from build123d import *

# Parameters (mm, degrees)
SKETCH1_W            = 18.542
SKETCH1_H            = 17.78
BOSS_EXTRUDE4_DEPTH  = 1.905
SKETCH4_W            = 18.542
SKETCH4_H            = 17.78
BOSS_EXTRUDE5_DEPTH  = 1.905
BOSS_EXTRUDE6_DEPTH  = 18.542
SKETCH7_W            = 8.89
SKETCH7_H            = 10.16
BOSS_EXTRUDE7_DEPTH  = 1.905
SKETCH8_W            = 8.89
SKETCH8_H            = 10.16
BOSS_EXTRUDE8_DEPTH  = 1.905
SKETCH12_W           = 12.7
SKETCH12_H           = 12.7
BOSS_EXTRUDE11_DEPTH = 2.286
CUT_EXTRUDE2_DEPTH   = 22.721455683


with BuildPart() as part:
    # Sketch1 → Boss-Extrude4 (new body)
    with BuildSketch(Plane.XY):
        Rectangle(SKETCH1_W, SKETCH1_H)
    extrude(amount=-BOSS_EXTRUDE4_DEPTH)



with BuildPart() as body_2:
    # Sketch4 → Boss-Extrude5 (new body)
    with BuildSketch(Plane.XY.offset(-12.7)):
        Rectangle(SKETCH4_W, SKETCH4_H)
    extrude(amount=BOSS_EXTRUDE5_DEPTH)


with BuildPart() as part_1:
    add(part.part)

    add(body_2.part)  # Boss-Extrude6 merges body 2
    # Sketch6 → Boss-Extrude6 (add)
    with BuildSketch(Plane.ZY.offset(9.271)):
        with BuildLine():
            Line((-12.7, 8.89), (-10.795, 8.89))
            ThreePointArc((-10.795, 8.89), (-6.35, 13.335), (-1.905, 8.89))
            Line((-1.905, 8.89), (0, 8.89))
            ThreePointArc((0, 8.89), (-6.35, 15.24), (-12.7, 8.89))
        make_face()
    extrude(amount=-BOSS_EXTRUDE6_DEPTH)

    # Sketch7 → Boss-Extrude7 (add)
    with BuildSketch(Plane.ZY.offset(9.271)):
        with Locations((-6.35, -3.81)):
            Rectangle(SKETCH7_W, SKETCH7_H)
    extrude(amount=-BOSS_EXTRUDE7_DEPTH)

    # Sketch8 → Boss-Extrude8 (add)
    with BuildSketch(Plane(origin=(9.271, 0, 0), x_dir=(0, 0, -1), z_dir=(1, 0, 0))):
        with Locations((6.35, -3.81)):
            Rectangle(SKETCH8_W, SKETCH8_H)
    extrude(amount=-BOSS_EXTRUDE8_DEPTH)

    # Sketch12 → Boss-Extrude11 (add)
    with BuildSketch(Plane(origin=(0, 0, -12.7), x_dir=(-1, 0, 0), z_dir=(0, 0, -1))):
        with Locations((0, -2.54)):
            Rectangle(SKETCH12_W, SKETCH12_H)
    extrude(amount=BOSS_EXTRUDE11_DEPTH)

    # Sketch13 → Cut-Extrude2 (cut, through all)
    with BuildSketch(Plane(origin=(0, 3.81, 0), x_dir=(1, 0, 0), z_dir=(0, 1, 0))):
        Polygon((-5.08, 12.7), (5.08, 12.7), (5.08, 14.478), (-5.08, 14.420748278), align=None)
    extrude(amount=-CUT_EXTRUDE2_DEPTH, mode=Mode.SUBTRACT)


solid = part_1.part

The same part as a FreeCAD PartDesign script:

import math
import FreeCAD as App
import Part
import Sketcher

V = App.Vector
Q = App.Units.Quantity

doc = App.newDocument("Part")
body = doc.addObject("PartDesign::Body", "Body")

# Sketch on XY plane
sketch1 = body.newObject("Sketcher::SketchObject", "Sketch")
sketch1.AttachmentSupport = (doc.getObject("XY_Plane"), [""])
sketch1.MapMode = "FlatFace"
sketch1.addGeometry([
    Part.LineSegment(V(-9.271, 8.89, 0), V(-9.271, -8.89, 0)),
    Part.LineSegment(V(-9.271, -8.89, 0), V(9.271, -8.89, 0)),
    Part.LineSegment(V(9.271, -8.89, 0), V(9.271, 8.89, 0)),
    Part.LineSegment(V(9.271, 8.89, 0), V(-9.271, 8.89, 0)),
], False)
sketch1.addConstraint([
    Sketcher.Constraint("Coincident", 0, 2, 1, 1),
    Sketcher.Constraint("Coincident", 1, 2, 2, 1),
    Sketcher.Constraint("Coincident", 2, 2, 3, 1),
    Sketcher.Constraint("Coincident", 3, 2, 0, 1),
    Sketcher.Constraint("Vertical", 0),
    Sketcher.Constraint("Horizontal", 1),
    Sketcher.Constraint("Vertical", 2),
    Sketcher.Constraint("Horizontal", 3),
    Sketcher.Constraint("Symmetric", 0, 2, 2, 2, -1, 1),
    Sketcher.Constraint("DistanceY", 0, 2, 0, 1, Q("0.7 in")),
    Sketcher.Constraint("DistanceX", 1, 1, 1, 2, Q("0.73 in")),
])
pad1 = body.newObject("PartDesign::Pad", "Pad")
pad1.Profile = sketch1
pad1.Length = Q("0.075 in")
pad1.Reversed = True
body2 = doc.addObject("PartDesign::Body", "Body001")

# Sketch on XY plane
sketch2 = body2.newObject("Sketcher::SketchObject", "Sketch001")
sketch2.AttachmentSupport = (doc.getObject("XY_Plane001"), [""])
sketch2.MapMode = "FlatFace"
sketch2.AttachmentOffset = App.Placement(V(0, 0, -0.5 * 25.4), App.Rotation())
sketch2.addGeometry([
    Part.LineSegment(V(-9.271, 8.89, 0), V(-9.271, -8.89, 0)),
    Part.LineSegment(V(-9.271, -8.89, 0), V(9.271, -8.89, 0)),
    Part.LineSegment(V(9.271, -8.89, 0), V(9.271, 8.89, 0)),
    Part.LineSegment(V(9.271, 8.89, 0), V(-9.271, 8.89, 0)),
], False)
sketch2.addConstraint([
    Sketcher.Constraint("Coincident", 0, 2, 1, 1),
    Sketcher.Constraint("Coincident", 1, 2, 2, 1),
    Sketcher.Constraint("Coincident", 2, 2, 3, 1),
    Sketcher.Constraint("Coincident", 3, 2, 0, 1),
    Sketcher.Constraint("Vertical", 0),
    Sketcher.Constraint("Horizontal", 1),
    Sketcher.Constraint("Vertical", 2),
    Sketcher.Constraint("Horizontal", 3),
    Sketcher.Constraint("Symmetric", 0, 2, 2, 2, -1, 1),
    Sketcher.Constraint("DistanceY", 0, 2, 0, 1, Q("0.7 in")),
    Sketcher.Constraint("DistanceX", 1, 1, 1, 2, Q("0.73 in")),
])
pad2 = body2.newObject("PartDesign::Pad", "Pad001")
pad2.Profile = sketch2
pad2.Length = Q("0.075 in")
body.AllowCompound = True
doc.recompute()

boolean = body.newObject("PartDesign::Boolean", "Boolean")
boolean.Type = "Fuse"
boolean.addObjects([body2])

# Sketch on YZ plane
sketch3 = body.newObject("Sketcher::SketchObject", "Sketch002")
sketch3.AttachmentSupport = (doc.getObject("YZ_Plane"), [""])
sketch3.MapMode = "FlatFace"
sketch3.AttachmentOffset = App.Placement(V(0, 0, -0.365 * 25.4), App.Rotation())
sketch3.addGeometry([
    Part.LineSegment(V(8.89, -12.7, 0), V(8.89, -10.795, 0)),
    Part.ArcOfCircle(Part.Circle(V(8.89, -6.35, 0), V(0, 0, 1), 4.445), math.radians(-90), math.radians(90)),
    Part.LineSegment(V(8.89, -1.905, 0), V(8.89, 0, 0)),
    Part.ArcOfCircle(Part.Circle(V(8.89, -6.35, 0), V(0, 0, 1), 6.35), math.radians(-90), math.radians(90)),
], False)
sketch3.addConstraint([
    Sketcher.Constraint("Coincident", 0, 2, 1, 1),
    Sketcher.Constraint("Coincident", 1, 2, 2, 1),
    Sketcher.Constraint("Coincident", 2, 2, 3, 2),
    Sketcher.Constraint("Coincident", 3, 1, 0, 1),
    Sketcher.Constraint("Vertical", 0),
    Sketcher.Constraint("Vertical", 2),
    Sketcher.Constraint("Coincident", 3, 3, 1, 3),
    Sketcher.Constraint("PointOnObject", 2, 2, -1),
    Sketcher.Constraint("Vertical", 3, 3, 0, 2),
    Sketcher.Constraint("Vertical", 0, 2, 1, 2),
    Sketcher.Constraint("Radius", 3, Q("0.25 in")),
    Sketcher.Constraint("Radius", 1, Q("0.175 in")),
    Sketcher.Constraint("DistanceX", -1, 1, 1, 3, Q("0.35 in")),
])
pad3 = body.newObject("PartDesign::Pad", "Pad002")
pad3.Profile = sketch3
pad3.Length = Q("0.73 in")

# Sketch on YZ plane
sketch4 = body.newObject("Sketcher::SketchObject", "Sketch003")
sketch4.AttachmentSupport = (doc.getObject("YZ_Plane"), [""])
sketch4.MapMode = "FlatFace"
sketch4.AttachmentOffset = App.Placement(V(0, 0, -0.365 * 25.4), App.Rotation())
sketch4.addGeometry([
    Part.LineSegment(V(1.27, -10.795, 0), V(-8.89, -10.795, 0)),
    Part.LineSegment(V(-8.89, -10.795, 0), V(-8.89, -1.905, 0)),
    Part.LineSegment(V(-8.89, -1.905, 0), V(1.27, -1.905, 0)),
    Part.LineSegment(V(1.27, -1.905, 0), V(1.27, -10.795, 0)),
], False)
sketch4.addConstraint([
    Sketcher.Constraint("Coincident", 0, 2, 1, 1),
    Sketcher.Constraint("Coincident", 1, 2, 2, 1),
    Sketcher.Constraint("Coincident", 2, 2, 3, 1),
    Sketcher.Constraint("Coincident", 3, 2, 0, 1),
    Sketcher.Constraint("Horizontal", 0),
    Sketcher.Constraint("Vertical", 1),
    Sketcher.Constraint("Horizontal", 2),
    Sketcher.Constraint("Vertical", 3),
    Sketcher.Constraint("DistanceX", 0, 2, 0, 1, Q("0.4 in")),
    Sketcher.Constraint("DistanceY", 1, 1, 1, 2, Q("0.35 in")),
    Sketcher.Constraint("DistanceX", 0, 2, -1, 1, Q("0.35 in")),
    Sketcher.Constraint("DistanceY", 0, 2, -1, 1, Q("0.425 in")),
])
pad4 = body.newObject("PartDesign::Pad", "Pad003")
pad4.Profile = sketch4
pad4.Length = Q("0.075 in")

# Sketch on YZ plane
sketch5 = body.newObject("Sketcher::SketchObject", "Sketch004")
sketch5.AttachmentSupport = (doc.getObject("YZ_Plane"), [""])
sketch5.MapMode = "FlatFace"
sketch5.AttachmentOffset = App.Placement(V(0, 0, 0.365 * 25.4), App.Rotation())
sketch5.addGeometry([
    Part.LineSegment(V(1.27, -1.905, 0), V(-8.89, -1.905, 0)),
    Part.LineSegment(V(-8.89, -1.905, 0), V(-8.89, -10.795, 0)),
    Part.LineSegment(V(-8.89, -10.795, 0), V(1.27, -10.795, 0)),
    Part.LineSegment(V(1.27, -10.795, 0), V(1.27, -1.905, 0)),
], False)
sketch5.addConstraint([
    Sketcher.Constraint("Coincident", 0, 2, 1, 1),
    Sketcher.Constraint("Coincident", 1, 2, 2, 1),
    Sketcher.Constraint("Coincident", 2, 2, 3, 1),
    Sketcher.Constraint("Coincident", 3, 2, 0, 1),
    Sketcher.Constraint("Horizontal", 0),
    Sketcher.Constraint("Vertical", 1),
    Sketcher.Constraint("Horizontal", 2),
    Sketcher.Constraint("Vertical", 3),
    Sketcher.Constraint("DistanceX", 0, 2, 0, 1, Q("0.4 in")),
    Sketcher.Constraint("DistanceY", 1, 2, 1, 1, Q("0.35 in")),
    Sketcher.Constraint("DistanceX", 0, 2, -1, 1, Q("0.35 in")),
    Sketcher.Constraint("DistanceY", 0, 2, -1, 1, Q("0.075 in")),
])
pad5 = body.newObject("PartDesign::Pad", "Pad004")
pad5.Profile = sketch5
pad5.Length = Q("0.075 in")
pad5.Reversed = True

# Sketch on XY plane
sketch6 = body.newObject("Sketcher::SketchObject", "Sketch005")
sketch6.AttachmentSupport = (doc.getObject("XY_Plane"), [""])
sketch6.MapMode = "FlatFace"
sketch6.AttachmentOffset = App.Placement(V(0, 0, -0.5 * 25.4), App.Rotation())
sketch6.addGeometry([
    Part.LineSegment(V(6.35, 3.81, 0), V(6.35, -8.89, 0)),
    Part.LineSegment(V(6.35, -8.89, 0), V(-6.35, -8.89, 0)),
    Part.LineSegment(V(-6.35, -8.89, 0), V(-6.35, 3.81, 0)),
    Part.LineSegment(V(-6.35, 3.81, 0), V(6.35, 3.81, 0)),
], False)
sketch6.addConstraint([
    Sketcher.Constraint("Coincident", 0, 2, 1, 1),
    Sketcher.Constraint("Coincident", 1, 2, 2, 1),
    Sketcher.Constraint("Coincident", 2, 2, 3, 1),
    Sketcher.Constraint("Coincident", 3, 2, 0, 1),
    Sketcher.Constraint("Vertical", 0),
    Sketcher.Constraint("Horizontal", 1),
    Sketcher.Constraint("Vertical", 2),
    Sketcher.Constraint("Horizontal", 3),
    Sketcher.Constraint("Equal", 3, 0),
    Sketcher.Constraint("DistanceX", 1, 2, 1, 1, Q("0.5 in")),
    Sketcher.Constraint("DistanceX", -1, 1, 0, 2, Q("0.25 in")),
    Sketcher.Constraint("DistanceY", 0, 2, -1, 1, Q("0.35 in")),
])
pad6 = body.newObject("PartDesign::Pad", "Pad005")
pad6.Profile = sketch6
pad6.Length = Q("0.09 in")
pad6.Reversed = True

# Sketch on XZ plane
sketch7 = body.newObject("Sketcher::SketchObject", "Sketch006")
sketch7.AttachmentSupport = (doc.getObject("XZ_Plane"), [""])
sketch7.MapMode = "FlatFace"
sketch7.AttachmentOffset = App.Placement(V(0, 0, -0.15 * 25.4), App.Rotation())
sketch7.addGeometry([
    Part.LineSegment(V(-5.08, -12.7, 0), V(5.08, -12.7, 0)),
    Part.LineSegment(V(5.08, -12.7, 0), V(5.08, -14.478, 0)),
    Part.LineSegment(V(5.08, -14.478, 0), V(-5.08, -14.420748, 0)),
    Part.LineSegment(V(-5.08, -14.420748, 0), V(-5.08, -12.7, 0)),
], False)
sketch7.addConstraint([
    Sketcher.Constraint("Coincident", 0, 2, 1, 1),
    Sketcher.Constraint("Coincident", 1, 2, 2, 1),
    Sketcher.Constraint("Coincident", 2, 2, 3, 1),
    Sketcher.Constraint("Coincident", 3, 2, 0, 1),
    Sketcher.Constraint("Horizontal", 0),
    Sketcher.Constraint("Vertical", 1),
    Sketcher.Constraint("Vertical", 3),
    Sketcher.Constraint("DistanceX", 0, 1, 0, 2, Q("0.4 in")),
    Sketcher.Constraint("DistanceY", 1, 2, 1, 1, Q("0.07 in")),
    Sketcher.Constraint("DistanceX", -1, 1, 0, 2, Q("0.2 in")),
    Sketcher.Constraint("DistanceY", 0, 2, -1, 1, Q("0.5 in")),
    Sketcher.Constraint("DistanceY", 3, 1, 3, 2, 1.720748),
])
pocket1 = body.newObject("PartDesign::Pocket", "Pocket")
pocket1.Profile = sketch7
pocket1.Type = "ThroughAll"
pocket1.Reversed = True

doc.recompute()
